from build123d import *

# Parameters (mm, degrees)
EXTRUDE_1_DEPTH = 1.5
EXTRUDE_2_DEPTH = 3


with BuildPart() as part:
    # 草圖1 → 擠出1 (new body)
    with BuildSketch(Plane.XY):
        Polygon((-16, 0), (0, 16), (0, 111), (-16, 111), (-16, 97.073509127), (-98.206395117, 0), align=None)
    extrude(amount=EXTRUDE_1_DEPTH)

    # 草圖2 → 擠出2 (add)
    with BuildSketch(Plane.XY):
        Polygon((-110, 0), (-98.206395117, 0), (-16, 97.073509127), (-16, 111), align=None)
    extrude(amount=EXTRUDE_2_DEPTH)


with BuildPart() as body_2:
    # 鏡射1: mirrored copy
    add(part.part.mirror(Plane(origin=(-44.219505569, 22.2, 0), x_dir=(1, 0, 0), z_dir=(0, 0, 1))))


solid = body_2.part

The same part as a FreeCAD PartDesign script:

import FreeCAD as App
import Part
import Sketcher
Q = App.Units.Quantity

doc = App.newDocument("Part")
body = doc.addObject("PartDesign::Body", "Body")

# Sketch on XY plane
sketch1 = body.newObject("Sketcher::SketchObject", "Sketch")
sketch1.AttachmentSupport = (doc.getObject("XY_Plane"), [""])
sketch1.MapMode = "FlatFace"
sketch1.addGeometry(Part.LineSegment(App.Vector(-16, 0, 0), App.Vector(0, 16, 0)), False)
sketch1.addGeometry(Part.LineSegment(App.Vector(0, 16, 0), App.Vector(0, 111, 0)), False)
sketch1.addGeometry(Part.LineSegment(App.Vector(0, 111, 0), App.Vector(-16, 111, 0)), False)
sketch1.addGeometry(Part.LineSegment(App.Vector(-16, 111, 0), App.Vector(-16, 97, 0)), False)
sketch1.addGeometry(Part.LineSegment(App.Vector(-16, 97, 0), App.Vector(-98, 0, 0)), False)
sketch1.addGeometry(Part.LineSegment(App.Vector(-98, 0, 0), App.Vector(-16, 0, 0)), False)
sketch1.addConstraint(Sketcher.Constraint("Coincident", 0, 2, 1, 1))
sketch1.addConstraint(Sketcher.Constraint("Coincident", 1, 2, 2, 1))
sketch1.addConstraint(Sketcher.Constraint("Coincident", 2, 2, 3, 1))
sketch1.addConstraint(Sketcher.Constraint("Coincident", 3, 2, 4, 1))
sketch1.addConstraint(Sketcher.Constraint("Coincident", 4, 2, 5, 1))
sketch1.addConstraint(Sketcher.Constraint("Coincident", 5, 2, 0, 1))
sketch1.addConstraint(Sketcher.Constraint("Vertical", 1))
sketch1.addConstraint(Sketcher.Constraint("Horizontal", 2))
sketch1.addConstraint(Sketcher.Constraint("Vertical", 3))
sketch1.addConstraint(Sketcher.Constraint("Horizontal", 5))
sketch1.addConstraint(Sketcher.Constraint("PointOnObject", 0, 2, -2))
sketch1.addConstraint(Sketcher.Constraint("PointOnObject", 4, 2, -1))
sketch1.addConstraint(Sketcher.Constraint("Vertical", 3, 2, 5, 2))
sketch1.addConstraint(Sketcher.Constraint("DistanceX", 2, 2, 2, 1, 16.0))
sketch1.addConstraint(Sketcher.Constraint("DistanceY", 1, 1, 1, 2, 95.0))
sketch1.addConstraint(Sketcher.Constraint("Angle", 0, Q("45 deg")))
sketch1.addConstraint(Sketcher.Constraint("DistanceY", 3, 2, 3, 1, 13.926491))
sketch1.addConstraint(Sketcher.Constraint("Distance", 4, 127.205179))
pad1 = body.newObject("PartDesign::Pad", "Pad")
pad1.Profile = sketch1
pad1.Length = 1.5

# Sketch on XY plane
sketch2 = body.newObject("Sketcher::SketchObject", "Sketch001")
sketch2.AttachmentSupport = (doc.getObject("XY_Plane"), [""])
sketch2.MapMode = "FlatFace"
sketch2.addGeometry(Part.LineSegment(App.Vector(-110, 0, 0), App.Vector(-98, 0, 0)), False)
sketch2.addGeometry(Part.LineSegment(App.Vector(-98, 0, 0), App.Vector(-16, 97, 0)), False)
sketch2.addGeometry(Part.LineSegment(App.Vector(-16, 97, 0), App.Vector(-16, 111, 0)), False)
sketch2.addGeometry(Part.LineSegment(App.Vector(-16, 111, 0), App.Vector(-110, 0, 0)), False)
sketch2.addConstraint(Sketcher.Constraint("Coincident", 0, 2, 1, 1))
sketch2.addConstraint(Sketcher.Constraint("Coincident", 1, 2, 2, 1))
sketch2.addConstraint(Sketcher.Constraint("Coincident", 2, 2, 3, 1))
sketch2.addConstraint(Sketcher.Constraint("Coincident", 3, 2, 0, 1))
sketch2.addConstraint(Sketcher.Constraint("Horizontal", 0))
sketch2.addConstraint(Sketcher.Constraint("Vertical", 2))
sketch2.addConstraint(Sketcher.Constraint("PointOnObject", 0, 2, -1))
sketch2.addConstraint(Sketcher.Constraint("Parallel", 1, 3))
sketch2.addConstraint(Sketcher.Constraint("DistanceX", 1, 2, -1, 1, 16.0))
sketch2.addConstraint(Sketcher.Constraint("DistanceY", -1, 1, 2, 2, 111.0))
sketch2.addConstraint(Sketcher.Constraint("DistanceX", 3, 2, -1, 1, 110.0))
sketch2.addConstraint(Sketcher.Constraint("DistanceY", 2, 1, 2, 2, 13.926491))
pad2 = body.newObject("PartDesign::Pad", "Pad001")
pad2.Profile = sketch2
pad2.Length = 3
body2 = doc.addObject("PartDesign::Body", "Body001")
doc.recompute()

mirroring = doc.addObject("Part::Mirroring", "Mirroring")
mirroring.Source = body
mirroring.Base = App.Vector(-44.219506, 22.2, 0)
mirroring.Normal = App.Vector(0, 0, 1)
body2.BaseFeature = mirroring
doc.recompute()
body.Visibility = False
mirroring.Visibility = False

doc.recompute()
